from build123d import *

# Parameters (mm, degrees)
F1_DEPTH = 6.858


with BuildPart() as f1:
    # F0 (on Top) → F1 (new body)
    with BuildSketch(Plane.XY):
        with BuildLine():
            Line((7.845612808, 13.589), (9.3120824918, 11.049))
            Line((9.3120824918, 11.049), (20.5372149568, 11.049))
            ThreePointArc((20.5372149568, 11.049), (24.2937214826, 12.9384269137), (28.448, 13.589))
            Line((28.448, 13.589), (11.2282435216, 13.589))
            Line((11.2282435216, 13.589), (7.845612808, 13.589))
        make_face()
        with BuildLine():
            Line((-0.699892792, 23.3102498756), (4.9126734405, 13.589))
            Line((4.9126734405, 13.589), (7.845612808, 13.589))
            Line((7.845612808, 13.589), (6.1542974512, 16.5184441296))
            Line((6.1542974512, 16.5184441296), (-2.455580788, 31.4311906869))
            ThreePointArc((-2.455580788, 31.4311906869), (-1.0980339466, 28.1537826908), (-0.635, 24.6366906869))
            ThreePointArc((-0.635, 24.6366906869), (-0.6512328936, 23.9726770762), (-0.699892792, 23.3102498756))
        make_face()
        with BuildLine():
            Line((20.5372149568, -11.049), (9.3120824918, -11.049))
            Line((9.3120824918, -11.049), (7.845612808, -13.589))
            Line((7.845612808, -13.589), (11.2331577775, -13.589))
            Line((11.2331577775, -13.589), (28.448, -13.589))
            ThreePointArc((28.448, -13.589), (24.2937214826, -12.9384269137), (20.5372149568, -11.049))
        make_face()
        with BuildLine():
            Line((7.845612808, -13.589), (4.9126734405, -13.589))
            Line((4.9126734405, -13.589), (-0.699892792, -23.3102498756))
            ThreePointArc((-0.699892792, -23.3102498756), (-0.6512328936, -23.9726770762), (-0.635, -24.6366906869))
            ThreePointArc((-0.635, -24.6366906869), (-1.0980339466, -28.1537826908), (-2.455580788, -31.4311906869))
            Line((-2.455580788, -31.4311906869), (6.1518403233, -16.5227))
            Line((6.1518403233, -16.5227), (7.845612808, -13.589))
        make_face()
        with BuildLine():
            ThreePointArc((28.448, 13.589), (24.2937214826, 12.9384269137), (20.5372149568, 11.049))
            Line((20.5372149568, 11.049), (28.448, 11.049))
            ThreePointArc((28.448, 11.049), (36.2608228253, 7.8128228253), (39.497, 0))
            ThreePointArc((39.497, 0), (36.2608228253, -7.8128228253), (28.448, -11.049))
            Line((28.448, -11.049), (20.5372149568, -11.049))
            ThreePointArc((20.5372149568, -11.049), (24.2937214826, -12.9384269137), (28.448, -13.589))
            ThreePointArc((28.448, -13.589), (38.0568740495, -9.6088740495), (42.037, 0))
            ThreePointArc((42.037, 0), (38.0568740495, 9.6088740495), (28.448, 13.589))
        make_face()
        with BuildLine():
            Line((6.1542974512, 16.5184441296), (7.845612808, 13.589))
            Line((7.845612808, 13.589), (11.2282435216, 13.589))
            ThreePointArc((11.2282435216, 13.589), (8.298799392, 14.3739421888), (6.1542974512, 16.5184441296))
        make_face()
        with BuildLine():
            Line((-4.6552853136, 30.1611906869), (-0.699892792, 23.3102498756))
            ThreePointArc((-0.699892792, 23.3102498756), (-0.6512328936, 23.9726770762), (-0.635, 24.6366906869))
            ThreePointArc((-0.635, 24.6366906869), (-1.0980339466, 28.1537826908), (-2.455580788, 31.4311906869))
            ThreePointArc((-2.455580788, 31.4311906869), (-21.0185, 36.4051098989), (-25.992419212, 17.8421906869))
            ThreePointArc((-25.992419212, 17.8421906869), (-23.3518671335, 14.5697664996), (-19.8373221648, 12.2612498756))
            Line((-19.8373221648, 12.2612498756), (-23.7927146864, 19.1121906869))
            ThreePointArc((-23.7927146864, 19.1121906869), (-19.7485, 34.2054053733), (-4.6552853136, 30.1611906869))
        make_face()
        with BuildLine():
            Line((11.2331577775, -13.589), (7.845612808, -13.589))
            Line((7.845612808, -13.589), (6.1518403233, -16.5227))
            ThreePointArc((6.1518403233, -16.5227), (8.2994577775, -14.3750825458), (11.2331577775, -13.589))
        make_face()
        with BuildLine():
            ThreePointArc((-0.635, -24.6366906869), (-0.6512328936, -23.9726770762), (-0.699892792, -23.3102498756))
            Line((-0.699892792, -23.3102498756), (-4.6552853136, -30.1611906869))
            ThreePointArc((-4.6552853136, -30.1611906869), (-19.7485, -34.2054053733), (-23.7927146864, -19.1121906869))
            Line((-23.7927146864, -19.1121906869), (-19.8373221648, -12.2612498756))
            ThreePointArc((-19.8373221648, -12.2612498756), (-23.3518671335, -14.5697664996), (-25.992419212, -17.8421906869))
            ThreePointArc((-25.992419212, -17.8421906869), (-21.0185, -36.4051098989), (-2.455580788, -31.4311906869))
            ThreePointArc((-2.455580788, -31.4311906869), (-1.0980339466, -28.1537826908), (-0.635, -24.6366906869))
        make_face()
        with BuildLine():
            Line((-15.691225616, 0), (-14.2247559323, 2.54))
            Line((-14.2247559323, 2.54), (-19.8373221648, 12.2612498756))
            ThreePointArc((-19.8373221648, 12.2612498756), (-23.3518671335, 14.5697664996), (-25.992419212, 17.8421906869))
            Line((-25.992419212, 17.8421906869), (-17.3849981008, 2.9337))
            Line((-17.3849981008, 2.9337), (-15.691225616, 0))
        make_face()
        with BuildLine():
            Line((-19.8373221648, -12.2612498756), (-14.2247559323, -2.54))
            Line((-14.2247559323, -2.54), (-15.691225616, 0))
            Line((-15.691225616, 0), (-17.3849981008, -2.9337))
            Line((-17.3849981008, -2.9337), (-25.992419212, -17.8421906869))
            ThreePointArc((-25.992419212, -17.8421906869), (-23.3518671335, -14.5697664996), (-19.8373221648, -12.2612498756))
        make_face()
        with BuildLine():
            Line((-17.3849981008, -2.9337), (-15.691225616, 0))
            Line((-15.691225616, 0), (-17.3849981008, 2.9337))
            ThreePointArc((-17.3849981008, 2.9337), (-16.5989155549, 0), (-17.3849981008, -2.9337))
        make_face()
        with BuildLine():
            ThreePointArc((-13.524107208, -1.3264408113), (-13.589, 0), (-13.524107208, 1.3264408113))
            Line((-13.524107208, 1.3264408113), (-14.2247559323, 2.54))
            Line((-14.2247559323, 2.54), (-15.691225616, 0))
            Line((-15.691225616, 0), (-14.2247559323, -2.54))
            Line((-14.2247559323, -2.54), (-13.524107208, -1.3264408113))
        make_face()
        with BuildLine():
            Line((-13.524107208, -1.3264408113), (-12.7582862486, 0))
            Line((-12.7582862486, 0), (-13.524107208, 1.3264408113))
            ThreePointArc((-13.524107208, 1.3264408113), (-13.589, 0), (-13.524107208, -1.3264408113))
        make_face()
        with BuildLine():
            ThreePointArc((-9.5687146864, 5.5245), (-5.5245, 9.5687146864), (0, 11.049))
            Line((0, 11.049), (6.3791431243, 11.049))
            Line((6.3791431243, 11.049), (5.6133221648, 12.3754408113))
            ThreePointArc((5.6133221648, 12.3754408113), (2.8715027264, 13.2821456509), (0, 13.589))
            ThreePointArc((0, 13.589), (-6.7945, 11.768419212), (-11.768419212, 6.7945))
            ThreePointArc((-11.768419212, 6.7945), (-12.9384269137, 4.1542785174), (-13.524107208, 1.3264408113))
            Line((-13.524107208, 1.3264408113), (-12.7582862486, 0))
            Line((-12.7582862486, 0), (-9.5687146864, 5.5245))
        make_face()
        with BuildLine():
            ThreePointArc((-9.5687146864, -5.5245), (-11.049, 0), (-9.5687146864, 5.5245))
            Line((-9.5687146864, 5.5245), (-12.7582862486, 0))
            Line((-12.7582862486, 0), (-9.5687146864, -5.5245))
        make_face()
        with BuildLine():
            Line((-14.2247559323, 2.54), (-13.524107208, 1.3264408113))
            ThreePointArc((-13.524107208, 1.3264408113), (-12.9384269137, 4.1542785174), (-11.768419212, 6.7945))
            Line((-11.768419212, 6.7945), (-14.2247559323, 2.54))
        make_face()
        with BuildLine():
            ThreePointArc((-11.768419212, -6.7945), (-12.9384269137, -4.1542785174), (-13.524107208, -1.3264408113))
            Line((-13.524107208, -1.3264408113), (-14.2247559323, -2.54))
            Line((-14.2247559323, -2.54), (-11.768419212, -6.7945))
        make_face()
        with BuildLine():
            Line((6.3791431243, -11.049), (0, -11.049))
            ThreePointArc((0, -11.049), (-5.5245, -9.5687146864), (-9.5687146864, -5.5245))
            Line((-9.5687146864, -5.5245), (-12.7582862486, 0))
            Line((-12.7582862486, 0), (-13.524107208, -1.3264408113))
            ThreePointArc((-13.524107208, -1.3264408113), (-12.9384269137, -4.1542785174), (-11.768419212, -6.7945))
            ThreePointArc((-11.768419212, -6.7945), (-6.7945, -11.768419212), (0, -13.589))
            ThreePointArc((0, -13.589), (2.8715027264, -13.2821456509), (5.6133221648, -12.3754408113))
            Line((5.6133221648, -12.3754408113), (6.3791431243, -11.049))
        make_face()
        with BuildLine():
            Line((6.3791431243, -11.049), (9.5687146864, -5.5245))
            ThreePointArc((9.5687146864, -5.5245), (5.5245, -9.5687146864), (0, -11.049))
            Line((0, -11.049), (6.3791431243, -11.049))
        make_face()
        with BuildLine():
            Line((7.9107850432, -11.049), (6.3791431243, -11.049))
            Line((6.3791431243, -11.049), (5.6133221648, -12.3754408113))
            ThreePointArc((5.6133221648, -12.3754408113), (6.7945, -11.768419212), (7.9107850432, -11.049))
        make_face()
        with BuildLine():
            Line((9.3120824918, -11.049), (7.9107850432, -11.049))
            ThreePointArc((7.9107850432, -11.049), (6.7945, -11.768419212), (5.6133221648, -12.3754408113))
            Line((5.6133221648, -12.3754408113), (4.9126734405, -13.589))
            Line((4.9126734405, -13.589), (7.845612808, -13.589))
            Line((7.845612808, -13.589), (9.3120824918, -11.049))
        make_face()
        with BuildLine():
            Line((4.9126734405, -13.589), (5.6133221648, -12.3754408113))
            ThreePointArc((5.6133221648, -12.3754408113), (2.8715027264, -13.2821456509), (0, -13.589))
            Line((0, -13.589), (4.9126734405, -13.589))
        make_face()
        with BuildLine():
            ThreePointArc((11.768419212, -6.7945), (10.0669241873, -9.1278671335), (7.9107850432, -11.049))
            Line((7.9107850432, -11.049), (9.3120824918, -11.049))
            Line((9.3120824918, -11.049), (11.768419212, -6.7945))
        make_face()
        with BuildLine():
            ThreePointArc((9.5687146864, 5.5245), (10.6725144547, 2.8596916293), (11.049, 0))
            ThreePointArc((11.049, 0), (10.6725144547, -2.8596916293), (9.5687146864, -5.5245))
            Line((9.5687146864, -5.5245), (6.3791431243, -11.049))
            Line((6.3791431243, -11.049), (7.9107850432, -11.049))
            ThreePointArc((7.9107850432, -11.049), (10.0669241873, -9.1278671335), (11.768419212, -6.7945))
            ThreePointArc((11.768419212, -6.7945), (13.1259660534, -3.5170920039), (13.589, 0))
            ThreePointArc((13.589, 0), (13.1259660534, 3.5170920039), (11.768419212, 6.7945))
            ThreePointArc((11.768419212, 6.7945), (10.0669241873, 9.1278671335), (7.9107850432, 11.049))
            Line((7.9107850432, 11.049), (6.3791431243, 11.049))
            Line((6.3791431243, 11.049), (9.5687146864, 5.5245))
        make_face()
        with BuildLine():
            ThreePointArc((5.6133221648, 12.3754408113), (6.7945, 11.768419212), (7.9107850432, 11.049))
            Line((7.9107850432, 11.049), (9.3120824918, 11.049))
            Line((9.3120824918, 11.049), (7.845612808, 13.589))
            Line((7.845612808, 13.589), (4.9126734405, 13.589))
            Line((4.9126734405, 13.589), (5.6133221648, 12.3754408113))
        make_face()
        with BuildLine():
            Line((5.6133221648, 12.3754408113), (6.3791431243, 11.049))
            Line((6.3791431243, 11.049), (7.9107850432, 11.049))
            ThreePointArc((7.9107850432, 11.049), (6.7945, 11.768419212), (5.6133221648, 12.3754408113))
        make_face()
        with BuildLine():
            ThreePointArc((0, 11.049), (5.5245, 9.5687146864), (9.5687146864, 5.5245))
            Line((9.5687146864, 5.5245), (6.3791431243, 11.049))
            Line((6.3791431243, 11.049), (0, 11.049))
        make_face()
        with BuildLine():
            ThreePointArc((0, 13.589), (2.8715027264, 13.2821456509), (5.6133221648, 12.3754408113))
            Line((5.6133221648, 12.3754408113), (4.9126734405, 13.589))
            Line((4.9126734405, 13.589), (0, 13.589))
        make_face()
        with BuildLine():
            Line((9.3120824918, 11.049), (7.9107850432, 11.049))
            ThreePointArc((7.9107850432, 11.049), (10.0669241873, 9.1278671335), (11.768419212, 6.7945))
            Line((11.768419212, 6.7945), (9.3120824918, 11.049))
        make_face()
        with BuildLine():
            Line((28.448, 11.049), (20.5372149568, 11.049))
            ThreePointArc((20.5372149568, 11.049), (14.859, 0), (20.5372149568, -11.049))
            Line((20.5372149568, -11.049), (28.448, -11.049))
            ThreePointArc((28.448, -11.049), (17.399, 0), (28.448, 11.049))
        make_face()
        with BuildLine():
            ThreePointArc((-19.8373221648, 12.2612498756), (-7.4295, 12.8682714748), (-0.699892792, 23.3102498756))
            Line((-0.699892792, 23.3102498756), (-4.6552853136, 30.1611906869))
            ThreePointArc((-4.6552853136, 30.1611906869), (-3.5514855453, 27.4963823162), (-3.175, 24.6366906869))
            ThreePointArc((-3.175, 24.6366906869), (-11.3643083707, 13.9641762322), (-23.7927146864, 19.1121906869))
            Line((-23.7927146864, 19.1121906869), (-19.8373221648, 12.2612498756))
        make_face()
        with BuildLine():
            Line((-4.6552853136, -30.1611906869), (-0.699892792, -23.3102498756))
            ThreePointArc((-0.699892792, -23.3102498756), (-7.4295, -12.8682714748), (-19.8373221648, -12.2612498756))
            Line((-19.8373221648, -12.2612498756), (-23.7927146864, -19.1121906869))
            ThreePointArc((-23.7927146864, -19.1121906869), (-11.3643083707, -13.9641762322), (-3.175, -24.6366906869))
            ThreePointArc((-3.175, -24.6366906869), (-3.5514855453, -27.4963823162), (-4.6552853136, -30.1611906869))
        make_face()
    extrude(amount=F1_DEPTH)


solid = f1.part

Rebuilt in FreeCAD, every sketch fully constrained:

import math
import FreeCAD as App
import Part
import Sketcher
from FreeCAD import Vector
Q = App.Units.Quantity

doc = App.newDocument("Part")
params = doc.addObject("Spreadsheet::Sheet", "Params")
for row, (alias, value) in enumerate([
    ("sketch1_radius", "0.231 in"),
    ("sketch1_radius2", "0.535 in"),
    ("sketch1_radius3", "0.435 in"),
    ("pad1_length", "0.27 in"),
], start=1):
    params.set(f"A{row}", alias)
    params.set(f"B{row}", "=" + value)
    params.setAlias(f"B{row}", alias)

body = doc.addObject("PartDesign::Body", "Body")

sketch1 = body.newObject("Sketcher::SketchObject", "Sketch")
sketch1.AttachmentSupport = (doc.getObject("XY_Plane"), [""])
sketch1.MapMode = "FlatFace"
sketch1.addGeometry([
    Part.LineSegment(Vector(-25.992419, 17.842191, 0), Vector(-17.384998, 2.9337, 0)),
    Part.ArcOfCircle(Part.Circle(Vector(-22.466316, 0, 0), Vector(0, 0, 1), 5.8674), math.radians(-30), math.radians(30)),
    Part.LineSegment(Vector(-17.384998, -2.9337, 0), Vector(-25.992419, -17.842191, 0)),
    Part.ArcOfCircle(Part.Circle(Vector(-14.224, -24.636691, 0), Vector(0, 0, 1), 13.589), math.radians(150), math.radians(330)),
    Part.LineSegment(Vector(-2.455581, -31.431191, 0), Vector(6.15184, -16.5227, 0)),
    Part.ArcOfCircle(Part.Circle(Vector(11.233158, -19.4564, 0), Vector(0, 0, 1), 5.8674), math.radians(90), math.radians(150)),
    Part.LineSegment(Vector(11.233158, -13.589, 0), Vector(28.448, -13.589, 0)),
    Part.ArcOfCircle(Part.Circle(Vector(28.448, 0, 0), Vector(0, 0, 1), 13.589), math.radians(-90), math.radians(0)),
    Part.ArcOfCircle(Part.Circle(Vector(28.448, 0, 0), Vector(0, 0, 1), 13.589), math.radians(0), math.radians(90)),
    Part.LineSegment(Vector(28.448, 13.589, 0), Vector(11.228244, 13.589, 0)),
    Part.ArcOfCircle(Part.Circle(Vector(11.228244, 19.447888, 0), Vector(0, 0, 1), 5.858888), math.radians(-150), math.radians(-90)),
    Part.LineSegment(Vector(6.154297, 16.518444, 0), Vector(-2.455581, 31.431191, 0)),
    Part.ArcOfCircle(Part.Circle(Vector(-14.224, 24.636691, 0), Vector(0, 0, 1), 13.589), math.radians(30), math.radians(210)),
    Part.LineSegment(Vector(4.912673, -13.589, 0), Vector(-0.699893, -23.31025, 0)),
    Part.ArcOfCircle(Part.Circle(Vector(-14.224, -24.636691, 0), Vector(0, 0, 1), 13.589), math.radians(5.601639), math.radians(114.398361)),
    Part.LineSegment(Vector(-19.837322, -12.26125, 0), Vector(-14.224756, -2.54, 0)),
    Part.LineSegment(Vector(-14.224756, -2.54, 0), Vector(-11.768419, -6.7945, 0)),
    Part.ArcOfCircle(Part.Circle(Vector(0, 0, 0), Vector(0, 0, 1), 13.589), math.radians(-150), math.radians(-90)),
    Part.LineSegment(Vector(0, -13.589, 0), Vector(4.912673, -13.589, 0)),
    Part.ArcOfCircle(Part.Circle(Vector(-14.224, -24.636691, 0), Vector(0, 0, 1), 11.049), math.radians(150), math.radians(330)),
    Part.ArcOfCircle(Part.Circle(Vector(-14.224, -24.636691, 0), Vector(0, 0, 1), 11.049), math.radians(0), math.radians(150)),
    Part.ArcOfCircle(Part.Circle(Vector(-14.224, -24.636691, 0), Vector(0, 0, 1), 11.049), math.radians(-30), math.radians(0)),
    Part.ArcOfCircle(Part.Circle(Vector(0, 0, 0), Vector(0, 0, 1), 11.049), math.radians(0), math.radians(30)),
    Part.ArcOfCircle(Part.Circle(Vector(0, 0, 0), Vector(0, 0, 1), 11.049), math.radians(-30), math.radians(0)),
    Part.ArcOfCircle(Part.Circle(Vector(0, 0, 0), Vector(0, 0, 1), 11.049), math.radians(-90), math.radians(-30)),
    Part.ArcOfCircle(Part.Circle(Vector(0, 0, 0), Vector(0, 0, 1), 11.049), math.radians(-150), math.radians(-90)),
    Part.ArcOfCircle(Part.Circle(Vector(0, 0, 0), Vector(0, 0, 1), 11.049), math.radians(150), math.radians(210)),
    Part.ArcOfCircle(Part.Circle(Vector(0, 0, 0), Vector(0, 0, 1), 11.049), math.radians(90), math.radians(150)),
    Part.ArcOfCircle(Part.Circle(Vector(0, 0, 0), Vector(0, 0, 1), 11.049), math.radians(30), math.radians(90)),
    Part.ArcOfCircle(Part.Circle(Vector(0, 0, 0), Vector(0, 0, 1), 13.589), math.radians(90), math.radians(150)),
    Part.LineSegment(Vector(-11.768419, 6.7945, 0), Vector(-14.224756, 2.54, 0)),
    Part.LineSegment(Vector(-14.224756, 2.54, 0), Vector(-19.837322, 12.26125, 0)),
    Part.ArcOfCircle(Part.Circle(Vector(-14.224, 24.636691, 0), Vector(0, 0, 1), 13.589), math.radians(-114.398361), math.radians(-5.601639)),
    Part.LineSegment(Vector(-0.699893, 23.31025, 0), Vector(4.912673, 13.589, 0)),
    Part.LineSegment(Vector(4.912673, 13.589, 0), Vector(0, 13.589, 0)),
    Part.ArcOfCircle(Part.Circle(Vector(-14.224, 24.636691, 0), Vector(0, 0, 1), 11.049), math.radians(30), math.radians(210)),
    Part.ArcOfCircle(Part.Circle(Vector(-14.224, 24.636691, 0), Vector(0, 0, 1), 11.049), math.radians(0), math.radians(30)),
    Part.ArcOfCircle(Part.Circle(Vector(-14.224, 24.636691, 0), Vector(0, 0, 1), 11.049), math.radians(-150), math.radians(0)),
    Part.LineSegment(Vector(9.312082, 11.049, 0), Vector(20.537215, 11.049, 0)),
    Part.ArcOfCircle(Part.Circle(Vector(28.448, 0, 0), Vector(0, 0, 1), 13.589), math.radians(125.601639), math.radians(234.398361)),
    Part.LineSegment(Vector(20.537215, -11.049, 0), Vector(9.312082, -11.049, 0)),
    Part.LineSegment(Vector(9.312082, -11.049, 0), Vector(11.768419, -6.7945, 0)),
    Part.ArcOfCircle(Part.Circle(Vector(0, 0, 0), Vector(0, 0, 1), 13.589), math.radians(-30), math.radians(0)),
    Part.ArcOfCircle(Part.Circle(Vector(0, 0, 0), Vector(0, 0, 1), 13.589), math.radians(0), math.radians(30)),
    Part.LineSegment(Vector(11.768419, 6.7945, 0), Vector(9.312082, 11.049, 0)),
    Part.ArcOfCircle(Part.Circle(Vector(28.448, 0, 0), Vector(0, 0, 1), 11.049), math.radians(0), math.radians(90)),
    Part.ArcOfCircle(Part.Circle(Vector(28.448, 0, 0), Vector(0, 0, 1), 11.049), math.radians(-90), math.radians(0)),
    Part.ArcOfCircle(Part.Circle(Vector(28.448, 0, 0), Vector(0, 0, 1), 11.049), math.radians(90), math.radians(270)),
], False)
sketch1.addConstraint([
    Sketcher.Constraint("Tangent", 0, 2, 1, 2),
    Sketcher.Constraint("Tangent", 1, 1, 2, 1),
    Sketcher.Constraint("Tangent", 2, 2, 3, 1),
    Sketcher.Constraint("Tangent", 3, 2, 4, 1),
    Sketcher.Constraint("Tangent", 4, 2, 5, 2),
    Sketcher.Constraint("Tangent", 5, 1, 6, 1),
    Sketcher.Constraint("Tangent", 6, 2, 7, 1),
    Sketcher.Constraint("Tangent", 7, 2, 8, 1),
    Sketcher.Constraint("Tangent", 8, 2, 9, 1),
    Sketcher.Constraint("Tangent", 9, 2, 10, 2),
    Sketcher.Constraint("Tangent", 10, 1, 11, 1),
    Sketcher.Constraint("Tangent", 11, 2, 12, 1),
    Sketcher.Constraint("Tangent", 12, 2, 0, 1),
    Sketcher.Constraint("Coincident", 13, 2, 14, 1),
    Sketcher.Constraint("Coincident", 14, 2, 15, 1),
    Sketcher.Constraint("Coincident", 15, 2, 16, 1),
    Sketcher.Constraint("Tangent", 16, 2, 17, 1),
    Sketcher.Constraint("Tangent", 17, 2, 18, 1),
    Sketcher.Constraint("Coincident", 18, 2, 13, 1),
    Sketcher.Constraint("Tangent", 19, 1, 20, 2),
    Sketcher.Constraint("Tangent", 20, 1, 21, 2),
    Sketcher.Constraint("Tangent", 21, 1, 19, 2),
    Sketcher.Constraint("Tangent", 22, 1, 23, 2),
    Sketcher.Constraint("Tangent", 23, 1, 24, 2),
    Sketcher.Constraint("Tangent", 24, 1, 25, 2),
    Sketcher.Constraint("Tangent", 25, 1, 26, 2),
    Sketcher.Constraint("Tangent", 26, 1, 27, 2),
    Sketcher.Constraint("Tangent", 27, 1, 28, 2),
    Sketcher.Constraint("Tangent", 28, 1, 22, 2),
    Sketcher.Constraint("Tangent", 29, 2, 30, 1),
    Sketcher.Constraint("Coincident", 30, 2, 31, 1),
    Sketcher.Constraint("Coincident", 31, 2, 32, 1),
    Sketcher.Constraint("Coincident", 32, 2, 33, 1),
    Sketcher.Constraint("Coincident", 33, 2, 34, 1),
    Sketcher.Constraint("Tangent", 34, 2, 29, 1),
    Sketcher.Constraint("Tangent", 35, 1, 36, 2),
    Sketcher.Constraint("Tangent", 36, 1, 37, 2),
    Sketcher.Constraint("Tangent", 37, 1, 35, 2),
    Sketcher.Constraint("Coincident", 38, 2, 39, 1),
    Sketcher.Constraint("Coincident", 39, 2, 40, 1),
    Sketcher.Constraint("Coincident", 40, 2, 41, 1),
    Sketcher.Constraint("Tangent", 41, 2, 42, 1),
    Sketcher.Constraint("Tangent", 42, 2, 43, 1),
    Sketcher.Constraint("Tangent", 43, 2, 44, 1),
    Sketcher.Constraint("Coincident", 44, 2, 38, 1),
    Sketcher.Constraint("Tangent", 45, 1, 46, 2),
    Sketcher.Constraint("Tangent", 46, 1, 47, 2),
    Sketcher.Constraint("Tangent", 47, 1, 45, 2),
    Sketcher.Constraint("Horizontal", 6),
    Sketcher.Constraint("Horizontal", 9),
    Sketcher.Constraint("Horizontal", 18),
    Sketcher.Constraint("Horizontal", 34),
    Sketcher.Constraint("Horizontal", 38),
    Sketcher.Constraint("Horizontal", 40),
    Sketcher.Constraint("Coincident", 17, 3, -1, 1),
    Sketcher.Constraint("Coincident", 22, 3, -1, 1),
    Sketcher.Constraint("Coincident", 24, 3, -1, 1),
    Sketcher.Constraint("Coincident", 26, 3, -1, 1),
    Sketcher.Constraint("Coincident", 29, 3, -1, 1),
    Sketcher.Constraint("Coincident", 42, 3, -1, 1),
    Sketcher.Constraint("Coincident", 14, 3, 3, 3),
    Sketcher.Constraint("Coincident", 19, 3, 3, 3),
    Sketcher.Constraint("Coincident", 32, 3, 12, 3),
    Sketcher.Constraint("Coincident", 35, 3, 12, 3),
    Sketcher.Constraint("Coincident", 39, 3, 7, 3),
    Sketcher.Constraint("Coincident", 45, 3, 7, 3),
    Sketcher.Constraint("Equal", 1, 5),
    Sketcher.Constraint("Equal", 3, 7),
    Sketcher.Constraint("Equal", 7, 8),
    Sketcher.Constraint("Equal", 8, 12),
    Sketcher.Constraint("Equal", 12, 14),
    Sketcher.Constraint("Equal", 14, 17),
    Sketcher.Constraint("Equal", 21, 22),
    Sketcher.Constraint("Equal", 17, 29),
    Sketcher.Constraint("Equal", 29, 32),
    Sketcher.Constraint("Equal", 28, 35),
    Sketcher.Constraint("Equal", 32, 39),
    Sketcher.Constraint("Equal", 39, 42),
    Sketcher.Constraint("Equal", 42, 43),
    Sketcher.Constraint("Equal", 37, 45),
    Sketcher.Constraint("Symmetric", 3, 3, 12, 3, -1),
    Sketcher.Constraint("Symmetric", 15, 2, 30, 2, -1),
    Sketcher.Constraint("Symmetric", 38, 2, 39, 2, -1),
    Sketcher.Constraint("PointOnObject", 1, 3, -1),
    Sketcher.Constraint("PointOnObject", 7, 2, -1),
    Sketcher.Constraint("PointOnObject", 22, 1, -1),
    Sketcher.Constraint("PointOnObject", 24, 1, -2),
    Sketcher.Constraint("PointOnObject", 27, 1, -2),
    Sketcher.Constraint("PointOnObject", 42, 2, -1),
    Sketcher.Constraint("PointOnObject", 45, 1, -1),
    Sketcher.Constraint("Parallel", 2, 4),
    Sketcher.Constraint("Parallel", 0, 11),
    Sketcher.Constraint("Parallel", 4, 13),
    Sketcher.Constraint("Parallel", 13, 15),
    Sketcher.Constraint("Parallel", 11, 16),
    Sketcher.Constraint("Parallel", 16, 31),
    Sketcher.Constraint("Parallel", 31, 33),
    Sketcher.Constraint("Parallel", 30, 41),
    Sketcher.Constraint("Parallel", 33, 44),
    Sketcher.Constraint("Horizontal", 21, 3, 20, 1),
    Sketcher.Constraint("Horizontal", 23, 1, 25, 1),
    Sketcher.Constraint("Horizontal", 26, 1, 28, 1),
    Sketcher.Constraint("Horizontal", 37, 3, 36, 1),
    Sketcher.Constraint("Horizontal", 27, 1, 38, 2),
    Sketcher.Constraint("Vertical", 25, 1, 26, 1),
    Sketcher.Constraint("Vertical", 13, 2, 32, 2),
    Sketcher.Constraint("Vertical", 21, 1, 35, 1),
    Sketcher.Constraint("Vertical", 19, 1, 37, 1),
    Sketcher.Constraint("Vertical", 8, 2, 46, 1),
    Sketcher.Constraint("Vertical", 46, 1, 47, 1),
    Sketcher.Constraint("Equal", 2, 4),
    Sketcher.Constraint("Equal", 13, 15),
    Sketcher.Constraint("Equal", 30, 41),
    Sketcher.Constraint("Radius", 1, Q("0.231 in")),
    Sketcher.Constraint("Radius", 3, Q("0.535 in")),
    Sketcher.Constraint("Radius", 19, Q("0.435 in")),
    Sketcher.Constraint("DistanceX", 3, 3, -1, 1, Q("0.56 in")),
    Sketcher.Constraint("DistanceX", -1, 1, 7, 3, Q("1.12 in")),
    Sketcher.Constraint("Radius", 10, 5.858888),
    Sketcher.Constraint("DistanceY", 23, 1, -1, 1, Q("0.2175 in")),
    Sketcher.Constraint("DistanceX", 0, 2, -1, 1, 17.384998),
    Sketcher.Constraint("DistanceY", 19, 1, -1, 1, 19.112191),
    Sketcher.Constraint("DistanceY", 21, 1, -1, 1, 30.161191),
])
sketch1.setExpression("Constraints[113]", "Params.sketch1_radius")
sketch1.setExpression("Constraints[114]", "Params.sketch1_radius2")
sketch1.setExpression("Constraints[115]", "Params.sketch1_radius3")
pad1 = body.newObject("PartDesign::Pad", "Pad")
pad1.Profile = sketch1
pad1.setExpression("Length", "Params.pad1_length")

doc.recompute()
